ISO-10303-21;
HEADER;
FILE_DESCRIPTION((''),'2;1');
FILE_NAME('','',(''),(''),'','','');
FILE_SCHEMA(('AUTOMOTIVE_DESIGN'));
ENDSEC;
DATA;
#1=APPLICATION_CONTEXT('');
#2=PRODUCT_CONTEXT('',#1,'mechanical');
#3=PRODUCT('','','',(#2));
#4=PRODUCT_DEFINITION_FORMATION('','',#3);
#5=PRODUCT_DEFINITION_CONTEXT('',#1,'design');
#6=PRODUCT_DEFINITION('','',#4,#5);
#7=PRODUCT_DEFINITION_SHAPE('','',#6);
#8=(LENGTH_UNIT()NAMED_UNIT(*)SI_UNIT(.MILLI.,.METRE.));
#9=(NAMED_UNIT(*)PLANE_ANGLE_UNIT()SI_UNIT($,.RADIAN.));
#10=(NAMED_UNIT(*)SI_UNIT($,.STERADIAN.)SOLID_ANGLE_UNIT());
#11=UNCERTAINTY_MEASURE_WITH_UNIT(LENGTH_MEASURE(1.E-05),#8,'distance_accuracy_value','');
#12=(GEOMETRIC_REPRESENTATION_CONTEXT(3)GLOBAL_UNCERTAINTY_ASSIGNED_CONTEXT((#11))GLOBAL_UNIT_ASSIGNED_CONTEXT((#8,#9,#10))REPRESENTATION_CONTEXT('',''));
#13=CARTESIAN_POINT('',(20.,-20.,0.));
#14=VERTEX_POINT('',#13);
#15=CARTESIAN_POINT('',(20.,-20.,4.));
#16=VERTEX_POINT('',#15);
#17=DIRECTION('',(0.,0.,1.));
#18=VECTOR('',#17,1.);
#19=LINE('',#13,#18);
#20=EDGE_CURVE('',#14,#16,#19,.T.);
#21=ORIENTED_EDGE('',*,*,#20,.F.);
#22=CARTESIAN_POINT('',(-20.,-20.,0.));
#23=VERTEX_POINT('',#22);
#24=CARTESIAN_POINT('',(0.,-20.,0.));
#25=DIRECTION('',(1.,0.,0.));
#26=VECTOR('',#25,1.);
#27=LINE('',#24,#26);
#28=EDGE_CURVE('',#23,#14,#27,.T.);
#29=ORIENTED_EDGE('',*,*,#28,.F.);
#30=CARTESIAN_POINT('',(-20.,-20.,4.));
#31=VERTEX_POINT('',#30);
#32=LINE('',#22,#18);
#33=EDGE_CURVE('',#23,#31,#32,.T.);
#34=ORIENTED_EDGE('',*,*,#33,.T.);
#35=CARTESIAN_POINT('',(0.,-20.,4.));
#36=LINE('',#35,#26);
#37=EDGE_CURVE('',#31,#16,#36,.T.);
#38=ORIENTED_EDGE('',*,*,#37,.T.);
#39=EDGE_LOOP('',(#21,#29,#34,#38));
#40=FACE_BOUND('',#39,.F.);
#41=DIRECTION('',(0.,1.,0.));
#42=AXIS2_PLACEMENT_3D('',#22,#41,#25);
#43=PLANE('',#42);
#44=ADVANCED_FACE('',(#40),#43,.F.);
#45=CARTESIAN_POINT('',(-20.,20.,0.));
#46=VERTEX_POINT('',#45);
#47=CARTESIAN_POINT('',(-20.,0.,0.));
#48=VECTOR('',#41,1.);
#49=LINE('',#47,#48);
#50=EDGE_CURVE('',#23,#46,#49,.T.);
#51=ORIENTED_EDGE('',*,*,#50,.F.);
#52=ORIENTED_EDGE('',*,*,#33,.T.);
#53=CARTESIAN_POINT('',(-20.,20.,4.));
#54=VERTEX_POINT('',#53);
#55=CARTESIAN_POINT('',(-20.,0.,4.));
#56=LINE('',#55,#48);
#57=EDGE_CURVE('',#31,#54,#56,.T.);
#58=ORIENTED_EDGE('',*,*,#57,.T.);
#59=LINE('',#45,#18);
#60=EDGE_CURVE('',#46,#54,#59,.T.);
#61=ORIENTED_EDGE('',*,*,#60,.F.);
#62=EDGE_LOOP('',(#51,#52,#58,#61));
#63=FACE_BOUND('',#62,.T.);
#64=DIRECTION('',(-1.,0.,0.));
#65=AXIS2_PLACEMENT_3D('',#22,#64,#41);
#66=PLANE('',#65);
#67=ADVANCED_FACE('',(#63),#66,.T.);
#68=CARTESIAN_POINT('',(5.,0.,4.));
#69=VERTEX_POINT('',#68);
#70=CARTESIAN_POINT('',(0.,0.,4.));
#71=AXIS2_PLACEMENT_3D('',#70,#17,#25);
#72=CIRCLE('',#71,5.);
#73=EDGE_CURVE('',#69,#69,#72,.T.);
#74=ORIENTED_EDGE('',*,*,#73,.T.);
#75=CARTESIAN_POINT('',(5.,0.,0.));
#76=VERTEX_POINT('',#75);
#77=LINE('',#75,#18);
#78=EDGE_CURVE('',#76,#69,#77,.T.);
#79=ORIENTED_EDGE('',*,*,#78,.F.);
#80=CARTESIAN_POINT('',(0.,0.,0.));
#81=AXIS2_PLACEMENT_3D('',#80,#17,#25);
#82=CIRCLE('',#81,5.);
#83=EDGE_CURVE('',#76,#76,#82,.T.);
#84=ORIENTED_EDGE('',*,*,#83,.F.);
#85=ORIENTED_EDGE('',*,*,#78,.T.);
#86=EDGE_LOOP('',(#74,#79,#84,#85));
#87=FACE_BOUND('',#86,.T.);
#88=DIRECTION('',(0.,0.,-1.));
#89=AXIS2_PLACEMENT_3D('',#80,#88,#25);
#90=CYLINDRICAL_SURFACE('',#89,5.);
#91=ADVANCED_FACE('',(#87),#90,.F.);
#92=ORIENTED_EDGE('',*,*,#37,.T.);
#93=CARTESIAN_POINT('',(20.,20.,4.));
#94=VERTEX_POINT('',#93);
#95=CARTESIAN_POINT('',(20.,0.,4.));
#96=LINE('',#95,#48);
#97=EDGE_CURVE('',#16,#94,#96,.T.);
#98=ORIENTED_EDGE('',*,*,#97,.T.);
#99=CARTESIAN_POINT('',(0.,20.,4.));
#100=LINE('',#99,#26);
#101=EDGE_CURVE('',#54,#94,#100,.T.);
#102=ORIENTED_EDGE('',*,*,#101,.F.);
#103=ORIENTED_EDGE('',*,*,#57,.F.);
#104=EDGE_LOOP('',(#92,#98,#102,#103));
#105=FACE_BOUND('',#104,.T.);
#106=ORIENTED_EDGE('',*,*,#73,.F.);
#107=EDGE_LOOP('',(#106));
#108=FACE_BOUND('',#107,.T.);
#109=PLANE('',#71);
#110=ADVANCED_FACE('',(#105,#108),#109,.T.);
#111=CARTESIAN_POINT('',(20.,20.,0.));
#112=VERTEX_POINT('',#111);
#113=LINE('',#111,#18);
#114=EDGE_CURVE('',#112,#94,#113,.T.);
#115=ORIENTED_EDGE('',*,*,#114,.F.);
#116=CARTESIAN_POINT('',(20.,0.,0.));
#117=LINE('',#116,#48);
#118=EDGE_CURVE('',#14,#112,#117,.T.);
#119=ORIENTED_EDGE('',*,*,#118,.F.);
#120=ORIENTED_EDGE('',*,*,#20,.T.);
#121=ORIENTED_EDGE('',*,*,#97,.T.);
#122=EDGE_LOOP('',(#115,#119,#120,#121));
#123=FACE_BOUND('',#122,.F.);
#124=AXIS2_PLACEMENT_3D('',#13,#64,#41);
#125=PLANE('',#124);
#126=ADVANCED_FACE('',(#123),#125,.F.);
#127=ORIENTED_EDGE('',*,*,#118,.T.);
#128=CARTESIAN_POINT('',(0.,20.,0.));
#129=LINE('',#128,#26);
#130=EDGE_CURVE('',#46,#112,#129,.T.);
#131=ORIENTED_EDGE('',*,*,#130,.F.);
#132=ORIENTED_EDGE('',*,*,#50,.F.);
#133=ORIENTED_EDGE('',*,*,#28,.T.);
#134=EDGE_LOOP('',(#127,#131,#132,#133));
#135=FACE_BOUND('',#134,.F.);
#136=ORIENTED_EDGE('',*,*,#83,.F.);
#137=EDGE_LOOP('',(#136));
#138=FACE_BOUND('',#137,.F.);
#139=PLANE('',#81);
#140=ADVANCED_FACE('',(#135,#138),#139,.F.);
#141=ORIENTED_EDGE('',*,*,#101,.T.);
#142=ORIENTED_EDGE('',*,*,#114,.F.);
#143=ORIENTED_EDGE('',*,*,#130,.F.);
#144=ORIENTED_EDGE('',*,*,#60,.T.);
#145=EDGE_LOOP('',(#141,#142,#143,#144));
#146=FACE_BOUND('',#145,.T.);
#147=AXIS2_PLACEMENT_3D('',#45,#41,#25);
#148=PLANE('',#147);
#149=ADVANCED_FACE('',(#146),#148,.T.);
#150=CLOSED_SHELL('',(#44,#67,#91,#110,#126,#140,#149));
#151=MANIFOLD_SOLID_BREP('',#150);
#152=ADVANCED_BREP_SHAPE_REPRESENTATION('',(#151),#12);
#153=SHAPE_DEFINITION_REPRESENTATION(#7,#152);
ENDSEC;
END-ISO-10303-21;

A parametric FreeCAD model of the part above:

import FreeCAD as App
import Part
import Sketcher
Q = App.Units.Quantity


def add_polygon(sketch, points):
    """Adds a closed chain of lines whose ends are joined by coincident constraints."""
    first, n = sketch.GeometryCount, len(points)
    for a, b in zip(points, points[1:] + points[:1]):
        sketch.addGeometry(Part.LineSegment(App.Vector(*a, 0), App.Vector(*b, 0)), False)
    for i in range(n):
        sketch.addConstraint(Sketcher.Constraint("Coincident", first + i, 2, first + (i + 1) % n, 1))

doc = App.newDocument("Part")
body = doc.addObject("PartDesign::Body", "Body")

# Sketch on XY plane
sketch1 = body.newObject("Sketcher::SketchObject", "Sketch")
sketch1.AttachmentSupport = (doc.getObject("XY_Plane"), [""])
sketch1.MapMode = "FlatFace"
add_polygon(sketch1, [(-20, 20), (-20, -20), (20, -20), (20, 20)])  # lines 0-3
sketch1.addGeometry(Part.Circle(App.Vector(0, 0, 0), App.Vector(0, 0, 1), 5), False)  # 4
sketch1.addConstraint(Sketcher.Constraint("Vertical", 0))
sketch1.addConstraint(Sketcher.Constraint("Horizontal", 1))
sketch1.addConstraint(Sketcher.Constraint("Vertical", 2))
sketch1.addConstraint(Sketcher.Constraint("Horizontal", 3))
sketch1.addConstraint(Sketcher.Constraint("Coincident", 4, 3, -1, 1))
sketch1.addConstraint(Sketcher.Constraint("Symmetric", 0, 2, 2, 2, -1, 1))
sketch1.addConstraint(Sketcher.Constraint("Equal", 3, 0))
sketch1.addConstraint(Sketcher.Constraint("Diameter", 4, Q("10 mm")))
sketch1.addConstraint(Sketcher.Constraint("DistanceX", 1, 1, 1, 2, Q("40 mm")))
pad1 = body.newObject("PartDesign::Pad", "Pad")
pad1.Profile = sketch1
pad1.Length = 4

doc.recompute()
